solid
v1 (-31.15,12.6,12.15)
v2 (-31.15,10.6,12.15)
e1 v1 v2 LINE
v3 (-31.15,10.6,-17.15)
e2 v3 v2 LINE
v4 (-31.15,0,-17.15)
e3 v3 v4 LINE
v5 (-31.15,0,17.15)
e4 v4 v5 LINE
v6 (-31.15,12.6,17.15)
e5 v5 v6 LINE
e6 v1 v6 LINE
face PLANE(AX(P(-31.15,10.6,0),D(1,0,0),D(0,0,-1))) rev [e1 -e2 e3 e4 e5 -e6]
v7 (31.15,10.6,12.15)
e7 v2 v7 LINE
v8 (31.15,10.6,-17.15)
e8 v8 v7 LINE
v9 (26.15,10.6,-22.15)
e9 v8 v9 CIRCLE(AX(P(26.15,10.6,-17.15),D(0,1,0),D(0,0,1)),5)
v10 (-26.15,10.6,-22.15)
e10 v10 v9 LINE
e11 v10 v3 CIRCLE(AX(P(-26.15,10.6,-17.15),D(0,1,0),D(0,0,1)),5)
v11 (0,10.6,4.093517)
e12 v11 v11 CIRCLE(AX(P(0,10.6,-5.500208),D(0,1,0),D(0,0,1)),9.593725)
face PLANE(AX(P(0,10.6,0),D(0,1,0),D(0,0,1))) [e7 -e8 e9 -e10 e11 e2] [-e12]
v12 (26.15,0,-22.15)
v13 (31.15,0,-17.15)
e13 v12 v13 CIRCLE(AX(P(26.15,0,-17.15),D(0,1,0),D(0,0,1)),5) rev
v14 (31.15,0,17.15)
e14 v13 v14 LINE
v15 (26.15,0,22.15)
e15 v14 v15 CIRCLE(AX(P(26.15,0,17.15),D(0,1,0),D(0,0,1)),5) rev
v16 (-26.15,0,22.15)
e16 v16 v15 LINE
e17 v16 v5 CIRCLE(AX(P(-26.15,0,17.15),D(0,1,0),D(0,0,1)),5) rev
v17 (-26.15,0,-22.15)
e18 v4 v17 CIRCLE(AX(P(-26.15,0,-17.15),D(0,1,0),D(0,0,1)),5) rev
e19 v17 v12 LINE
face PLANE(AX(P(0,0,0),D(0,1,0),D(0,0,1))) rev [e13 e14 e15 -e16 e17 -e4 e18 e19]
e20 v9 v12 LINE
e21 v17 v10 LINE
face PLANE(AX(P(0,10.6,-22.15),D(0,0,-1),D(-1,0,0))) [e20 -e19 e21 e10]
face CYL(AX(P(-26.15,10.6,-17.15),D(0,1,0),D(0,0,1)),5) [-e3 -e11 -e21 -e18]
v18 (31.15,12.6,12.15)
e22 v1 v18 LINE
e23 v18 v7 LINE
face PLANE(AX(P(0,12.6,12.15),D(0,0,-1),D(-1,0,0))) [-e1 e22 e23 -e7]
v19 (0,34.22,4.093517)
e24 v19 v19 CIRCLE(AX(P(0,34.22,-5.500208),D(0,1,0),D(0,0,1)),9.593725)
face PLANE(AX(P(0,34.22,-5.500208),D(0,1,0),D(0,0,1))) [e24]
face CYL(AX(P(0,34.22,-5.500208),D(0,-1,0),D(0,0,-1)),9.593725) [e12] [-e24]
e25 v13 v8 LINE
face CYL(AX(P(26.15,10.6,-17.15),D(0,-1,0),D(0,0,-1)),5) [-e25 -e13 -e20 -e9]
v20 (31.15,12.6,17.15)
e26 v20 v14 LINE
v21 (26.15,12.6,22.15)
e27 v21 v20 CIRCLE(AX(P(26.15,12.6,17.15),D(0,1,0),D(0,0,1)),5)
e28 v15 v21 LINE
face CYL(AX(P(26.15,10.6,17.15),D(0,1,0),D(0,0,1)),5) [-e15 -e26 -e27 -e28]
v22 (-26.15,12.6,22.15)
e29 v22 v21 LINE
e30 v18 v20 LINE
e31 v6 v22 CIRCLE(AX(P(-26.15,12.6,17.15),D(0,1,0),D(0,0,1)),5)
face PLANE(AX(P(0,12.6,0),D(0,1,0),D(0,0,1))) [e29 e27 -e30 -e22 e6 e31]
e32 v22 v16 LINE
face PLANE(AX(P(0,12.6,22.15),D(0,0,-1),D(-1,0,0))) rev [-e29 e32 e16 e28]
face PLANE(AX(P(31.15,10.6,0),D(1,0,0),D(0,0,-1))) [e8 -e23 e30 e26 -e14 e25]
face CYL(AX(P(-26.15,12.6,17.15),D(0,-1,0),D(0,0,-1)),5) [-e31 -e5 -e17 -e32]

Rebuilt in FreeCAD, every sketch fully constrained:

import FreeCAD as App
import Part
import Sketcher
Q = App.Units.Quantity


def edges_at(feature, points):
    """Names of the edges that pass closest to the given points."""
    edges = feature.Shape.Edges
    near = lambda p: min(range(len(edges)), key=lambda i: edges[i].distToShape(Part.Vertex(*p))[0])
    return sorted({f"Edge{near(p) + 1}" for p in points})

doc = App.newDocument("Part")
params = doc.addObject("Spreadsheet::Sheet", "Params")
for row, (alias, value) in enumerate([
    ("sketch1_width", "62.3 mm"),
    ("sketch1_height", "34.3 mm"),
    ("pad1_length", "10.6 mm"),
    ("sketch2_height", "10 mm"),
    ("sketch2_width", "62.3 mm"),
    ("pad2_length", "12.6 mm"),
    ("pad3_length", "23.62 mm"),
    ("fillet_radius", "5 mm"),
], start=1):
    params.set(f"A{row}", alias)
    params.set(f"B{row}", "=" + value)
    params.setAlias(f"B{row}", alias)

body = doc.addObject("PartDesign::Body", "Body")

sketch1 = doc.addObject("Sketcher::SketchObject", "Sketch")
body.addObject(sketch1)
sketch1.AttachmentSupport = (doc.XZ_Plane, [""])
sketch1.MapMode = "FlatFace"
sketch1.addGeometry(Part.LineSegment(App.Vector(-31, -22, 0), App.Vector(-31, 12, 0)), False)
sketch1.addGeometry(Part.LineSegment(App.Vector(-31, 12, 0), App.Vector(31, 12, 0)), False)
sketch1.addGeometry(Part.LineSegment(App.Vector(31, 12, 0), App.Vector(31, -22, 0)), False)
sketch1.addGeometry(Part.LineSegment(App.Vector(31, -22, 0), App.Vector(-31, -22, 0)), False)
sketch1.addConstraint(Sketcher.Constraint("Coincident", 0, 2, 1, 1))
sketch1.addConstraint(Sketcher.Constraint("Coincident", 1, 2, 2, 1))
sketch1.addConstraint(Sketcher.Constraint("Coincident", 2, 2, 3, 1))
sketch1.addConstraint(Sketcher.Constraint("Coincident", 3, 2, 0, 1))
sketch1.addConstraint(Sketcher.Constraint("Vertical", 0))
sketch1.addConstraint(Sketcher.Constraint("Horizontal", 1))
sketch1.addConstraint(Sketcher.Constraint("Vertical", 2))
sketch1.addConstraint(Sketcher.Constraint("Horizontal", 3))
sketch1.addConstraint(Sketcher.Constraint("DistanceX", 1, 1, 1, 2, Q("62.3 mm")))
sketch1.addConstraint(Sketcher.Constraint("DistanceY", 0, 1, 0, 2, Q("34.3 mm")))
sketch1.addConstraint(Sketcher.Constraint("DistanceX", 0, 2, -1, 1, Q("31.15 mm")))
sketch1.addConstraint(Sketcher.Constraint("DistanceY", -1, 1, 0, 2, Q("12.15 mm")))
sketch1.setExpression("Constraints[8]", "Params.sketch1_width")
sketch1.setExpression("Constraints[9]", "Params.sketch1_height")
pad1 = doc.addObject("PartDesign::Pad", "Pad")
body.addObject(pad1)
pad1.Profile = sketch1
pad1.setExpression("Length", "Params.pad1_length")
pad1.Reversed = True

sketch2 = doc.addObject("Sketcher::SketchObject", "Sketch001")
body.addObject(sketch2)
sketch2.AttachmentSupport = (doc.XZ_Plane, [""])
sketch2.MapMode = "FlatFace"
sketch2.addGeometry(Part.LineSegment(App.Vector(-31, 12, 0), App.Vector(-31, 22, 0)), False)
sketch2.addGeometry(Part.LineSegment(App.Vector(-31, 22, 0), App.Vector(31, 22, 0)), False)
sketch2.addGeometry(Part.LineSegment(App.Vector(31, 22, 0), App.Vector(31, 12, 0)), False)
sketch2.addGeometry(Part.LineSegment(App.Vector(31, 12, 0), App.Vector(-31, 12, 0)), False)
sketch2.addConstraint(Sketcher.Constraint("Coincident", 0, 2, 1, 1))
sketch2.addConstraint(Sketcher.Constraint("Coincident", 1, 2, 2, 1))
sketch2.addConstraint(Sketcher.Constraint("Coincident", 2, 2, 3, 1))
sketch2.addConstraint(Sketcher.Constraint("Coincident", 3, 2, 0, 1))
sketch2.addConstraint(Sketcher.Constraint("Vertical", 0))
sketch2.addConstraint(Sketcher.Constraint("Horizontal", 1))
sketch2.addConstraint(Sketcher.Constraint("Vertical", 2))
sketch2.addConstraint(Sketcher.Constraint("Horizontal", 3))
sketch2.addConstraint(Sketcher.Constraint("DistanceY", 0, 1, 0, 2, Q("10 mm")))
sketch2.addConstraint(Sketcher.Constraint("DistanceX", 1, 1, 1, 2, Q("62.3 mm")))
sketch2.addConstraint(Sketcher.Constraint("DistanceX", 0, 2, -1, 1, Q("31.15 mm")))
sketch2.addConstraint(Sketcher.Constraint("DistanceY", -1, 1, 0, 2, Q("22.15 mm")))
sketch2.setExpression("Constraints[8]", "Params.sketch2_height")
sketch2.setExpression("Constraints[9]", "Params.sketch2_width")
pad2 = doc.addObject("PartDesign::Pad", "Pad001")
body.addObject(pad2)
pad2.Profile = sketch2
pad2.setExpression("Length", "Params.pad2_length")
pad2.Reversed = True

sketch3 = doc.addObject("Sketcher::SketchObject", "Sketch002")
body.addObject(sketch3)
sketch3.AttachmentSupport = (doc.XZ_Plane, [""])
sketch3.MapMode = "FlatFace"
sketch3.AttachmentOffset = App.Placement(App.Vector(0, 0, -10.6), App.Rotation())
sketch3.addGeometry(Part.Circle(App.Vector(0, -6, 0), App.Vector(0, 0, 1), 10), False)
sketch3.addConstraint(Sketcher.Constraint("PointOnObject", 0, 3, -2))
sketch3.addConstraint(Sketcher.Constraint("Diameter", 0, Q("19.187451 mm")))
sketch3.addConstraint(Sketcher.Constraint("DistanceY", 0, 3, -1, 1, Q("5.500208 mm")))
pad3 = doc.addObject("PartDesign::Pad", "Pad002")
body.addObject(pad3)
pad3.Profile = sketch3
pad3.setExpression("Length", "Params.pad3_length")
pad3.Reversed = True
doc.recompute()

fillet = doc.addObject("PartDesign::Fillet", "Fillet")
body.addObject(fillet)
fillet.Base = (pad3, edges_at(pad3, [
    (31.15, 6.3, 22.15),
    (-31.15, 6.3, 22.15),
    (-31.15, 5.3, -22.15),
    (31.15, 5.3, -22.15),
]))
fillet.setExpression("Radius", "Params.fillet_radius")

doc.recompute()
